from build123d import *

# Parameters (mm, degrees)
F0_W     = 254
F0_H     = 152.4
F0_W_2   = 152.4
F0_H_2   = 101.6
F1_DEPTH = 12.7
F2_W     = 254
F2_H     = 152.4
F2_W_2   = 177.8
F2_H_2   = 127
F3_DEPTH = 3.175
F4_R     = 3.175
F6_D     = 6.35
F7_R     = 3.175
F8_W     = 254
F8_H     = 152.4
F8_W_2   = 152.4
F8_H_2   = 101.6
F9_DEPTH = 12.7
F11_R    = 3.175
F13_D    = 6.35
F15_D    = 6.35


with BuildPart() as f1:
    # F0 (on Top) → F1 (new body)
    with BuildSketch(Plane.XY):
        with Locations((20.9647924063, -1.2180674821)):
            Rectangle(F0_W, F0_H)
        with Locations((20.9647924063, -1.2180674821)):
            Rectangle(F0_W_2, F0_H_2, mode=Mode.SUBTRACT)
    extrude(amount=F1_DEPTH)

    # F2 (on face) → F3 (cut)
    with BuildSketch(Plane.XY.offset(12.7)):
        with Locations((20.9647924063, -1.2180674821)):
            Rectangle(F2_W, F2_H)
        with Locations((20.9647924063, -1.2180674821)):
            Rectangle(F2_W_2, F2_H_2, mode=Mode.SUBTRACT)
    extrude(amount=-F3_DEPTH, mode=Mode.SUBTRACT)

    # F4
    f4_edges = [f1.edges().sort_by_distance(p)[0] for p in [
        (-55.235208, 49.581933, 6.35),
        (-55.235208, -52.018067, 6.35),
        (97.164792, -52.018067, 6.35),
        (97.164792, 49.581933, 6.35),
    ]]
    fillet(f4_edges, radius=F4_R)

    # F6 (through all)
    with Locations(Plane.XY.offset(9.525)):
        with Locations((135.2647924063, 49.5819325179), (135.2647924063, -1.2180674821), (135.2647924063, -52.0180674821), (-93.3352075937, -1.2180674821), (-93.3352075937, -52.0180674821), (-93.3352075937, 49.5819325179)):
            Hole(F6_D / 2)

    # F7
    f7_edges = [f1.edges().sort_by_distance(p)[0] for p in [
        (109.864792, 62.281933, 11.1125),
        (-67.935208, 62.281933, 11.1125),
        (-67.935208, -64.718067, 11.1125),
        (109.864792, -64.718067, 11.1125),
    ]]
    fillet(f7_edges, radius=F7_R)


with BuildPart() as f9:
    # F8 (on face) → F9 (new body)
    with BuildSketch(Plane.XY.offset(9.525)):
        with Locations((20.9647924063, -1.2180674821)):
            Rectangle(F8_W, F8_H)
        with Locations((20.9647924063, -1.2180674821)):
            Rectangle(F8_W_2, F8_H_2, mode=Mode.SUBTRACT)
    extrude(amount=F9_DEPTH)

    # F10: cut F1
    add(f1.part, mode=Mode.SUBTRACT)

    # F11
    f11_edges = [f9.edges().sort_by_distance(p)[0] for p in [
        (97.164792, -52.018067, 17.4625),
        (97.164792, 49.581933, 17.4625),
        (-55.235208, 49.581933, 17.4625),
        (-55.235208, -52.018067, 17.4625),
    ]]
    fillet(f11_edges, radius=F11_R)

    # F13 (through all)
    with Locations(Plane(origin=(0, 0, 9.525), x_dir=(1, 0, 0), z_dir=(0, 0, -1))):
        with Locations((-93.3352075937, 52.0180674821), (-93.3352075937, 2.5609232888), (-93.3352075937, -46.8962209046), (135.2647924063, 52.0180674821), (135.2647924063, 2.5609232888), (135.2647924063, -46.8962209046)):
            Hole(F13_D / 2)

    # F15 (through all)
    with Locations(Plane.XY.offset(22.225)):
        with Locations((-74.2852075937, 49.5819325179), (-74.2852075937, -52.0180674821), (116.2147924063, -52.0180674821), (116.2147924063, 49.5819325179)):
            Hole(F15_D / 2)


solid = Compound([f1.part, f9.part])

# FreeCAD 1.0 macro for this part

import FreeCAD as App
import Part
import Sketcher
Q = App.Units.Quantity


def edges_at(feature, points):
    """Names of the edges that pass closest to the given points."""
    edges = feature.Shape.Edges
    near = lambda p: min(range(len(edges)), key=lambda i: edges[i].distToShape(Part.Vertex(*p))[0])
    return sorted({f"Edge{near(p) + 1}" for p in points})


def add_polygon(sketch, points):
    """Adds a closed chain of lines whose ends are joined by coincident constraints."""
    first, n = sketch.GeometryCount, len(points)
    for a, b in zip(points, points[1:] + points[:1]):
        sketch.addGeometry(Part.LineSegment(App.Vector(*a, 0), App.Vector(*b, 0)), False)
    for i in range(n):
        sketch.addConstraint(Sketcher.Constraint("Coincident", first + i, 2, first + (i + 1) % n, 1))

doc = App.newDocument("Part")
body = doc.addObject("PartDesign::Body", "Body")

# Sketch on XY plane
sketch1 = body.newObject("Sketcher::SketchObject", "Sketch")
sketch1.AttachmentSupport = (doc.getObject("XY_Plane"), [""])
sketch1.MapMode = "FlatFace"
add_polygon(sketch1, [(-106, 75), (-106, -77), (148, -77), (148, 75)])  # lines 0-3
add_polygon(sketch1, [(97, -52), (-55, -52), (-55, 50), (97, 50)])  # lines 4-7
sketch1.addConstraint([
    Sketcher.Constraint("Vertical", 0),
    Sketcher.Constraint("Horizontal", 1),
    Sketcher.Constraint("Vertical", 2),
    Sketcher.Constraint("Horizontal", 3),
    Sketcher.Constraint("Horizontal", 4),
    Sketcher.Constraint("Vertical", 5),
    Sketcher.Constraint("Horizontal", 6),
    Sketcher.Constraint("Vertical", 7),
    Sketcher.Constraint("Equal", 6, 0),
    Sketcher.Constraint("DistanceX", 1, 1, 1, 2, Q("10 in")),
    Sketcher.Constraint("DistanceX", 4, 2, 4, 1, Q("6 in")),
    Sketcher.Constraint("DistanceY", 5, 1, 5, 2, Q("4 in")),
    Sketcher.Constraint("DistanceX", 0, 2, 4, 2, Q("2 in")),
    Sketcher.Constraint("DistanceY", 0, 2, 4, 2, Q("1 in")),
    Sketcher.Constraint("DistanceX", 0, 2, -1, 1, Q("106.035208 mm")),
    Sketcher.Constraint("DistanceY", 0, 2, -1, 1, Q("77.418067 mm")),
])
pad1 = body.newObject("PartDesign::Pad", "Pad")
pad1.Profile = sketch1
pad1.Length = Q("0.5 in")

# Sketch on XY plane
sketch2 = body.newObject("Sketcher::SketchObject", "Sketch001")
sketch2.AttachmentSupport = (doc.getObject("XY_Plane"), [""])
sketch2.MapMode = "FlatFace"
sketch2.AttachmentOffset = App.Placement(App.Vector(0, 0, 0.5 * 25.4), App.Rotation())
add_polygon(sketch2, [(-106, 75), (-106, -77), (148, -77), (148, 75)])  # lines 0-3
add_polygon(sketch2, [(110, -65), (-68, -65), (-68, 62), (110, 62)])  # lines 4-7
sketch2.addConstraint([
    Sketcher.Constraint("Vertical", 0),
    Sketcher.Constraint("Horizontal", 1),
    Sketcher.Constraint("Vertical", 2),
    Sketcher.Constraint("Horizontal", 3),
    Sketcher.Constraint("Horizontal", 4),
    Sketcher.Constraint("Vertical", 5),
    Sketcher.Constraint("Horizontal", 6),
    Sketcher.Constraint("Vertical", 7),
    Sketcher.Constraint("DistanceX", 1, 1, 1, 2, Q("10 in")),
    Sketcher.Constraint("DistanceX", 4, 2, 4, 1, Q("7 in")),
    Sketcher.Constraint("DistanceY", 0, 2, 0, 1, Q("6 in")),
    Sketcher.Constraint("DistanceY", 5, 1, 5, 2, Q("5 in")),
    Sketcher.Constraint("DistanceX", 0, 2, 4, 2, Q("1.5 in")),
    Sketcher.Constraint("DistanceY", 0, 2, 4, 2, Q("0.5 in")),
    Sketcher.Constraint("DistanceX", 0, 2, -1, 1, Q("106.035208 mm")),
    Sketcher.Constraint("DistanceY", 0, 2, -1, 1, Q("77.418067 mm")),
])
pocket1 = body.newObject("PartDesign::Pocket", "Pocket")
pocket1.Profile = sketch2
pocket1.Length = Q("0.125 in")
doc.recompute()

fillet = body.newObject("PartDesign::Fillet", "Fillet")
fillet.Base = (pocket1, edges_at(pocket1, [
    (-55.235, 49.582, 6.35),
    (-55.235, -52.018, 6.35),
    (97.165, -52.018, 6.35),
    (97.165, 49.582, 6.35),
]))
fillet.Radius = Q("0.125 in")

# Sketch on XY plane
sketch3 = body.newObject("Sketcher::SketchObject", "Sketch002")
sketch3.AttachmentSupport = (doc.getObject("XY_Plane"), [""])
sketch3.MapMode = "FlatFace"
sketch3.AttachmentOffset = App.Placement(App.Vector(0, 0, 0.375 * 25.4), App.Rotation())
sketch3.addGeometry([
    Part.Circle(App.Vector(135.3, 49.6, 0), App.Vector(0, 0, 1), 3.2),  # 0
    Part.Circle(App.Vector(135.3, -1.2, 0), App.Vector(0, 0, 1), 3.2),  # 1
    Part.Circle(App.Vector(135.3, -52, 0), App.Vector(0, 0, 1), 3.2),  # 2
    Part.Circle(App.Vector(-93.3, -1.2, 0), App.Vector(0, 0, 1), 3.2),  # 3
    Part.Circle(App.Vector(-93.3, -52, 0), App.Vector(0, 0, 1), 3.2),  # 4
    Part.Circle(App.Vector(-93.3, 49.6, 0), App.Vector(0, 0, 1), 3.2),  # 5
], False)
sketch3.addConstraint([
    Sketcher.Constraint("Equal", 0, 1),
    Sketcher.Constraint("Equal", 1, 2),
    Sketcher.Constraint("Equal", 2, 3),
    Sketcher.Constraint("Equal", 3, 4),
    Sketcher.Constraint("Equal", 4, 5),
    Sketcher.Constraint("Horizontal", 1, 3, 3, 3),
    Sketcher.Constraint("Horizontal", 2, 3, 4, 3),
    Sketcher.Constraint("Horizontal", 0, 3, 5, 3),
    Sketcher.Constraint("Vertical", 0, 3, 1, 3),
    Sketcher.Constraint("Vertical", 1, 3, 2, 3),
    Sketcher.Constraint("Vertical", 3, 3, 4, 3),
    Sketcher.Constraint("Vertical", 4, 3, 5, 3),
    Sketcher.Constraint("Diameter", 0, Q("0.25 in")),
    Sketcher.Constraint("DistanceY", 1, 3, 0, 3, Q("2 in")),
    Sketcher.Constraint("DistanceY", 2, 3, 1, 3, Q("2 in")),
    Sketcher.Constraint("DistanceX", 3, 3, 1, 3, Q("9 in")),
    Sketcher.Constraint("DistanceX", -1, 1, 0, 3, Q("135.264792 mm")),
    Sketcher.Constraint("DistanceY", -1, 1, 0, 3, Q("49.581933 mm")),
])
doc.recompute()
hole = body.newObject("PartDesign::Hole", "Hole")
hole.Profile = sketch3
hole.ThreadType = "None"
hole.Diameter = Q("0.25 in")
hole.DepthType = "ThroughAll"
doc.recompute()

fillet2 = body.newObject("PartDesign::Fillet", "Fillet001")
fillet2.Base = (hole, edges_at(hole, [
    (109.865, 62.282, 11.113),
    (-67.935, 62.282, 11.113),
    (-67.935, -64.718, 11.113),
    (109.865, -64.718, 11.113),
]))
fillet2.Radius = Q("0.125 in")
body2 = doc.addObject("PartDesign::Body", "Body001")

# Sketch on XY plane
sketch4 = body2.newObject("Sketcher::SketchObject", "Sketch003")
sketch4.AttachmentSupport = (doc.getObject("XY_Plane001"), [""])
sketch4.MapMode = "FlatFace"
sketch4.AttachmentOffset = App.Placement(App.Vector(0, 0, 0.375 * 25.4), App.Rotation())
add_polygon(sketch4, [(-106, 75), (-106, -77), (148, -77), (148, 75)])  # lines 0-3
add_polygon(sketch4, [(97, -52), (-55, -52), (-55, 50), (97, 50)])  # lines 4-7
sketch4.addConstraint([
    Sketcher.Constraint("Vertical", 0),
    Sketcher.Constraint("Horizontal", 1),
    Sketcher.Constraint("Vertical", 2),
    Sketcher.Constraint("Horizontal", 3),
    Sketcher.Constraint("Horizontal", 4),
    Sketcher.Constraint("Vertical", 5),
    Sketcher.Constraint("Horizontal", 6),
    Sketcher.Constraint("Vertical", 7),
    Sketcher.Constraint("Equal", 6, 0),
    Sketcher.Constraint("DistanceX", 1, 1, 1, 2, Q("10 in")),
    Sketcher.Constraint("DistanceX", 4, 2, 4, 1, Q("6 in")),
    Sketcher.Constraint("DistanceY", 5, 1, 5, 2, Q("4 in")),
    Sketcher.Constraint("DistanceX", 0, 2, 4, 2, Q("2 in")),
    Sketcher.Constraint("DistanceY", 0, 2, 4, 2, Q("1 in")),
    Sketcher.Constraint("DistanceX", 0, 2, -1, 1, Q("106.035208 mm")),
    Sketcher.Constraint("DistanceY", 0, 2, -1, 1, Q("77.418067 mm")),
])
pad2 = body2.newObject("PartDesign::Pad", "Pad001")
pad2.Profile = sketch4
pad2.Length = Q("0.5 in")
doc.recompute()

body3 = doc.addObject("PartDesign::Body", "Body002")
body3.BaseFeature = body
boolean = body2.newObject("PartDesign::Boolean", "Boolean")
boolean.Type = "Cut"
boolean.addObjects([body3])
doc.recompute()

fillet3 = body2.newObject("PartDesign::Fillet", "Fillet002")
fillet3.Base = (boolean, edges_at(boolean, [
    (97.165, -52.018, 17.462),
    (97.165, 49.582, 17.462),
    (-55.235, 49.582, 17.462),
    (-55.235, -52.018, 17.462),
]))
fillet3.Radius = Q("0.125 in")

# Sketch on XY plane
sketch5 = body2.newObject("Sketcher::SketchObject", "Sketch004")
sketch5.AttachmentSupport = (doc.getObject("XY_Plane001"), [""])
sketch5.MapMode = "FlatFace"
sketch5.AttachmentOffset = App.Placement(App.Vector(0, 0, 0.375 * 25.4), App.Rotation())
sketch5.addGeometry([
    Part.Circle(App.Vector(-93.3, -52, 0), App.Vector(0, 0, 1), 3.2),  # 0
    Part.Circle(App.Vector(-93.3, -2.6, 0), App.Vector(0, 0, 1), 3.2),  # 1
    Part.Circle(App.Vector(-93.3, 46.9, 0), App.Vector(0, 0, 1), 3.2),  # 2
    Part.Circle(App.Vector(135.3, -52, 0), App.Vector(0, 0, 1), 3.2),  # 3
    Part.Circle(App.Vector(135.3, -2.6, 0), App.Vector(0, 0, 1), 3.2),  # 4
    Part.Circle(App.Vector(135.3, 46.9, 0), App.Vector(0, 0, 1), 3.2),  # 5
], False)
sketch5.addConstraint([
    Sketcher.Constraint("Equal", 0, 1),
    Sketcher.Constraint("Equal", 1, 2),
    Sketcher.Constraint("Equal", 2, 3),
    Sketcher.Constraint("Equal", 3, 4),
    Sketcher.Constraint("Equal", 4, 5),
    Sketcher.Constraint("Horizontal", 0, 3, 3, 3),
    Sketcher.Constraint("Horizontal", 1, 3, 4, 3),
    Sketcher.Constraint("Horizontal", 2, 3, 5, 3),
    Sketcher.Constraint("Vertical", 0, 3, 1, 3),
    Sketcher.Constraint("Vertical", 1, 3, 2, 3),
    Sketcher.Constraint("Vertical", 3, 3, 4, 3),
    Sketcher.Constraint("Vertical", 4, 3, 5, 3),
    Sketcher.Constraint("Diameter", 0, Q("0.25 in")),
    Sketcher.Constraint("DistanceX", 0, 3, 3, 3, Q("9 in")),
    Sketcher.Constraint("DistanceY", -1, 1, 2, 3, Q("46.896221 mm")),
    Sketcher.Constraint("DistanceY", 0, 3, 2, 3, Q("98.914288 mm")),
    Sketcher.Constraint("DistanceX", 0, 3, -1, 1, Q("93.335208 mm")),
    Sketcher.Constraint("DistanceY", 1, 3, -1, 1, Q("2.560923 mm")),
])
doc.recompute()
hole2 = body2.newObject("PartDesign::Hole", "Hole001")
hole2.Profile = sketch5
hole2.ThreadType = "None"
hole2.Diameter = Q("0.25 in")
hole2.DepthType = "ThroughAll"
hole2.Reversed = True

# Sketch on XY plane
sketch6 = body2.newObject("Sketcher::SketchObject", "Sketch005")
sketch6.AttachmentSupport = (doc.getObject("XY_Plane001"), [""])
sketch6.MapMode = "FlatFace"
sketch6.AttachmentOffset = App.Placement(App.Vector(0, 0, 0.875 * 25.4), App.Rotation())
sketch6.addGeometry([
    Part.Circle(App.Vector(-74.3, 49.6, 0), App.Vector(0, 0, 1), 3.2),
    Part.Circle(App.Vector(-74.3, -52, 0), App.Vector(0, 0, 1), 3.2),
    Part.Circle(App.Vector(116.2, -52, 0), App.Vector(0, 0, 1), 3.2),
    Part.Circle(App.Vector(116.2, 49.6, 0), App.Vector(0, 0, 1), 3.2),
], False)
sketch6.addConstraint([
    Sketcher.Constraint("Equal", 0, 1),
    Sketcher.Constraint("Equal", 1, 2),
    Sketcher.Constraint("Equal", 2, 3),
    Sketcher.Constraint("Horizontal", 1, 3, 2, 3),
    Sketcher.Constraint("Horizontal", 0, 3, 3, 3),
    Sketcher.Constraint("Vertical", 0, 3, 1, 3),
    Sketcher.Constraint("Vertical", 2, 3, 3, 3),
    Sketcher.Constraint("Diameter", 0, Q("0.25 in")),
    Sketcher.Constraint("DistanceY", 1, 3, 0, 3, Q("4 in")),
    Sketcher.Constraint("DistanceX", 1, 3, 2, 3, Q("7.5 in")),
    Sketcher.Constraint("DistanceX", 0, 3, -1, 1, Q("74.285208 mm")),
    Sketcher.Constraint("DistanceY", -1, 1, 0, 3, Q("49.581933 mm")),
])
doc.recompute()
hole3 = body2.newObject("PartDesign::Hole", "Hole002")
hole3.Profile = sketch6
hole3.ThreadType = "None"
hole3.Diameter = Q("0.25 in")
hole3.DepthType = "ThroughAll"

doc.recompute()
